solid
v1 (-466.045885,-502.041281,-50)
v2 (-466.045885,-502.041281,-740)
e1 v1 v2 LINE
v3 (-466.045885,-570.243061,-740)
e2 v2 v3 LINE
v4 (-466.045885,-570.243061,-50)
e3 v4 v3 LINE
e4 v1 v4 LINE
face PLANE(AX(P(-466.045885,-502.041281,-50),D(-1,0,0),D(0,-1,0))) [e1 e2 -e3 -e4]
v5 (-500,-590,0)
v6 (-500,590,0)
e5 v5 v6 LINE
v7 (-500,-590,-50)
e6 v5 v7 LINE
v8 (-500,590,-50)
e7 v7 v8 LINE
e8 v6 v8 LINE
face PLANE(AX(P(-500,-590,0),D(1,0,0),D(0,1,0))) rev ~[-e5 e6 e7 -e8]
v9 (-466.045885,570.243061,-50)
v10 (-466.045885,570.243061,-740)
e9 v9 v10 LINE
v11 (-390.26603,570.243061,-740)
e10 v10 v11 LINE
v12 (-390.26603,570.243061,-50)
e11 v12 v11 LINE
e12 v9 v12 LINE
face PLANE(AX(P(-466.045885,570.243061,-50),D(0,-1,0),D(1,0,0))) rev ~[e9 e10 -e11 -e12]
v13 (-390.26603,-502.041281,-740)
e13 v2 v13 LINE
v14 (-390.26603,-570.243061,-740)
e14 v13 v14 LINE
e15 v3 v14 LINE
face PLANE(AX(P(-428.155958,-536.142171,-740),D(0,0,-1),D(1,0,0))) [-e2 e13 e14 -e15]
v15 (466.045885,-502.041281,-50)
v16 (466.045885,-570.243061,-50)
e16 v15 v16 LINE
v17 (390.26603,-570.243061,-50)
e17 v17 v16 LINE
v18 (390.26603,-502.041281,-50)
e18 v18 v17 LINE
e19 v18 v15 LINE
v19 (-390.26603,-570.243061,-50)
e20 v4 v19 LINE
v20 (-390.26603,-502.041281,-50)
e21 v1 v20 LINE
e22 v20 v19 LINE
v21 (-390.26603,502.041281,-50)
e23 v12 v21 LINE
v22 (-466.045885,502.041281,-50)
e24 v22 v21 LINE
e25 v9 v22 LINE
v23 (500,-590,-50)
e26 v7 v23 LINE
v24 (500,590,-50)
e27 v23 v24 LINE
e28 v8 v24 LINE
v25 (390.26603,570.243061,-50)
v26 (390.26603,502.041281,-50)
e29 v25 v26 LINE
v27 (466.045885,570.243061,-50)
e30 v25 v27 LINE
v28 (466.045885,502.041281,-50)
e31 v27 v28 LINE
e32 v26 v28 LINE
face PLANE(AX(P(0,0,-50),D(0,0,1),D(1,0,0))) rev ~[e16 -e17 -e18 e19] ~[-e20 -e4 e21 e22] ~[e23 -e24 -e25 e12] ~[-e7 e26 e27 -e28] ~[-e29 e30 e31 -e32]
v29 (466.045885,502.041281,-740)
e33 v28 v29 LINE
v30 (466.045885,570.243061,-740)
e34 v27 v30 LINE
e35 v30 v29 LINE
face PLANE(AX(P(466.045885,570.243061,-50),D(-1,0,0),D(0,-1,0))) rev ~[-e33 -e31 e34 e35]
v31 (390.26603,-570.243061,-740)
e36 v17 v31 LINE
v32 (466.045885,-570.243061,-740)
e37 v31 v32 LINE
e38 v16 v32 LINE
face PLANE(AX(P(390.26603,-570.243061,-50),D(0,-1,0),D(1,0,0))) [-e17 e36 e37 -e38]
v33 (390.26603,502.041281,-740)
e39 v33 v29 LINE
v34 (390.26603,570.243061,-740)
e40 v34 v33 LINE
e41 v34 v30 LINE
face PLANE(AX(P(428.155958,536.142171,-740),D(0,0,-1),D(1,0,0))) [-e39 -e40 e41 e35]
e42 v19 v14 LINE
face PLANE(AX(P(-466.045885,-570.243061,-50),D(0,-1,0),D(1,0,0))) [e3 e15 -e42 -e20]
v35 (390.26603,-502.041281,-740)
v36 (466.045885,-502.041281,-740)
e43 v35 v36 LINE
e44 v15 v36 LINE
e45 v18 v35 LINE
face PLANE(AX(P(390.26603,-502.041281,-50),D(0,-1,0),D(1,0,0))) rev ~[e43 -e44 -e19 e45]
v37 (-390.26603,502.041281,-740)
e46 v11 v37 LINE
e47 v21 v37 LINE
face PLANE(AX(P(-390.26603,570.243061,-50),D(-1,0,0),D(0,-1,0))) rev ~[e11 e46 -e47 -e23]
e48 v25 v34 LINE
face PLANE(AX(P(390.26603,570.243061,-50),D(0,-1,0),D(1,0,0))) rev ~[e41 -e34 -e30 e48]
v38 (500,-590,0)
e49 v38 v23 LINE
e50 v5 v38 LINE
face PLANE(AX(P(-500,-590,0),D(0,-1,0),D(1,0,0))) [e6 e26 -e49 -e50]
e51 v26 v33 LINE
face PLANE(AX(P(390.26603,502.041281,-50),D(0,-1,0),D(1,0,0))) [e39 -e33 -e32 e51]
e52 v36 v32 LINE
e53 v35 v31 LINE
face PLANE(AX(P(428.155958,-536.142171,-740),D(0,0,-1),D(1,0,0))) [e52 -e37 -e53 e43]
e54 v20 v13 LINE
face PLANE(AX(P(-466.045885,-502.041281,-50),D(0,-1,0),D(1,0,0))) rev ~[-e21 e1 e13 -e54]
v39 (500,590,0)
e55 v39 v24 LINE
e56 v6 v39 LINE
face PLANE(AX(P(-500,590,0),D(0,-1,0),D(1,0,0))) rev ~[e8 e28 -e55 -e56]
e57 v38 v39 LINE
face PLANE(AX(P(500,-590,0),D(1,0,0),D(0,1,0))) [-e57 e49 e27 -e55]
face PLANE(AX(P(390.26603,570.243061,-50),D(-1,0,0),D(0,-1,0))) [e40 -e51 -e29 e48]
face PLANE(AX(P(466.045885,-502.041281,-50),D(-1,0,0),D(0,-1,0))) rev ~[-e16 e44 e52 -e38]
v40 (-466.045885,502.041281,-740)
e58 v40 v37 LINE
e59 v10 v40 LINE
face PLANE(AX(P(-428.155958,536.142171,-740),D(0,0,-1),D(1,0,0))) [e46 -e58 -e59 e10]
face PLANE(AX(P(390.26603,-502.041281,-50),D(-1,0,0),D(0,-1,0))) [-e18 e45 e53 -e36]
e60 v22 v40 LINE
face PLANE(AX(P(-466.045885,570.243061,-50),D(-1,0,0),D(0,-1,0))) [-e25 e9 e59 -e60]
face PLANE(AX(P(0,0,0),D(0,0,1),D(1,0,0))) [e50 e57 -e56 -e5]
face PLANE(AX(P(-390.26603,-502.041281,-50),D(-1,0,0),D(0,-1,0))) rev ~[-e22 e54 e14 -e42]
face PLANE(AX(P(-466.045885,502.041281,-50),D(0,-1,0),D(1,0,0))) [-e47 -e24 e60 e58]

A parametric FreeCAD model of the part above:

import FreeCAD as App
import Part
import Sketcher

V = App.Vector

doc = App.newDocument("Part")
body = doc.addObject("PartDesign::Body", "Body")

# Sketch on XY plane
sketch1 = body.newObject("Sketcher::SketchObject", "Sketch")
sketch1.AttachmentSupport = (doc.getObject("XY_Plane"), [""])
sketch1.MapMode = "FlatFace"
sketch1.addGeometry(Part.LineSegment(V(-500, 590, 0), V(-500, -590, 0)), False)
sketch1.addGeometry(Part.LineSegment(V(-500, -590, 0), V(500, -590, 0)), False)
sketch1.addGeometry(Part.LineSegment(V(500, -590, 0), V(500, 590, 0)), False)
sketch1.addGeometry(Part.LineSegment(V(500, 590, 0), V(-500, 590, 0)), False)
sketch1.addConstraint(Sketcher.Constraint("Coincident", 0, 2, 1, 1))
sketch1.addConstraint(Sketcher.Constraint("Coincident", 1, 2, 2, 1))
sketch1.addConstraint(Sketcher.Constraint("Coincident", 2, 2, 3, 1))
sketch1.addConstraint(Sketcher.Constraint("Coincident", 3, 2, 0, 1))
sketch1.addConstraint(Sketcher.Constraint("Vertical", 0))
sketch1.addConstraint(Sketcher.Constraint("Horizontal", 1))
sketch1.addConstraint(Sketcher.Constraint("Vertical", 2))
sketch1.addConstraint(Sketcher.Constraint("Horizontal", 3))
sketch1.addConstraint(Sketcher.Constraint("Symmetric", 0, 2, 2, 2, -1, 1))
sketch1.addConstraint(Sketcher.Constraint("DistanceX", 1, 1, 1, 2, 1000.0))
sketch1.addConstraint(Sketcher.Constraint("DistanceY", 0, 2, 0, 1, 1180.0))
pad1 = body.newObject("PartDesign::Pad", "Pad")
pad1.Profile = sketch1
pad1.Length = 50
pad1.Reversed = True

# Sketch on XY plane
sketch2 = body.newObject("Sketcher::SketchObject", "Sketch001")
sketch2.AttachmentSupport = (doc.getObject("XY_Plane"), [""])
sketch2.MapMode = "FlatFace"
sketch2.AttachmentOffset = App.Placement(V(0, 0, -50), App.Rotation())
sketch2.addGeometry(Part.LineSegment(V(-466, -570, 0), V(-466, -502, 0)), False)
sketch2.addGeometry(Part.LineSegment(V(-466, -502, 0), V(-390, -502, 0)), False)
sketch2.addGeometry(Part.LineSegment(V(-390, -502, 0), V(-390, -570, 0)), False)
sketch2.addGeometry(Part.LineSegment(V(-390, -570, 0), V(-466, -570, 0)), False)
sketch2.addGeometry(Part.LineSegment(V(390, -570, 0), V(390, -502, 0)), False)
sketch2.addGeometry(Part.LineSegment(V(390, -502, 0), V(466, -502, 0)), False)
sketch2.addGeometry(Part.LineSegment(V(466, -502, 0), V(466, -570, 0)), False)
sketch2.addGeometry(Part.LineSegment(V(466, -570, 0), V(390, -570, 0)), False)
sketch2.addGeometry(Part.LineSegment(V(390, 502, 0), V(390, 570, 0)), False)
sketch2.addGeometry(Part.LineSegment(V(390, 570, 0), V(466, 570, 0)), False)
sketch2.addGeometry(Part.LineSegment(V(466, 570, 0), V(466, 502, 0)), False)
sketch2.addGeometry(Part.LineSegment(V(466, 502, 0), V(390, 502, 0)), False)
sketch2.addGeometry(Part.LineSegment(V(-466, 502, 0), V(-466, 570, 0)), False)
sketch2.addGeometry(Part.LineSegment(V(-466, 570, 0), V(-390, 570, 0)), False)
sketch2.addGeometry(Part.LineSegment(V(-390, 570, 0), V(-390, 502, 0)), False)
sketch2.addGeometry(Part.LineSegment(V(-390, 502, 0), V(-466, 502, 0)), False)
sketch2.addConstraint(Sketcher.Constraint("Coincident", 0, 2, 1, 1))
sketch2.addConstraint(Sketcher.Constraint("Coincident", 1, 2, 2, 1))
sketch2.addConstraint(Sketcher.Constraint("Coincident", 2, 2, 3, 1))
sketch2.addConstraint(Sketcher.Constraint("Coincident", 3, 2, 0, 1))
sketch2.addConstraint(Sketcher.Constraint("Coincident", 4, 2, 5, 1))
sketch2.addConstraint(Sketcher.Constraint("Coincident", 5, 2, 6, 1))
sketch2.addConstraint(Sketcher.Constraint("Coincident", 6, 2, 7, 1))
sketch2.addConstraint(Sketcher.Constraint("Coincident", 7, 2, 4, 1))
sketch2.addConstraint(Sketcher.Constraint("Coincident", 8, 2, 9, 1))
sketch2.addConstraint(Sketcher.Constraint("Coincident", 9, 2, 10, 1))
sketch2.addConstraint(Sketcher.Constraint("Coincident", 10, 2, 11, 1))
sketch2.addConstraint(Sketcher.Constraint("Coincident", 11, 2, 8, 1))
sketch2.addConstraint(Sketcher.Constraint("Coincident", 12, 2, 13, 1))
sketch2.addConstraint(Sketcher.Constraint("Coincident", 13, 2, 14, 1))
sketch2.addConstraint(Sketcher.Constraint("Coincident", 14, 2, 15, 1))
sketch2.addConstraint(Sketcher.Constraint("Coincident", 15, 2, 12, 1))
sketch2.addConstraint(Sketcher.Constraint("Vertical", 0))
sketch2.addConstraint(Sketcher.Constraint("Horizontal", 1))
sketch2.addConstraint(Sketcher.Constraint("Vertical", 2))
sketch2.addConstraint(Sketcher.Constraint("Horizontal", 3))
sketch2.addConstraint(Sketcher.Constraint("Vertical", 4))
sketch2.addConstraint(Sketcher.Constraint("Horizontal", 5))
sketch2.addConstraint(Sketcher.Constraint("Vertical", 6))
sketch2.addConstraint(Sketcher.Constraint("Horizontal", 7))
sketch2.addConstraint(Sketcher.Constraint("Vertical", 8))
sketch2.addConstraint(Sketcher.Constraint("Horizontal", 9))
sketch2.addConstraint(Sketcher.Constraint("Vertical", 10))
sketch2.addConstraint(Sketcher.Constraint("Horizontal", 11))
sketch2.addConstraint(Sketcher.Constraint("Vertical", 12))
sketch2.addConstraint(Sketcher.Constraint("Horizontal", 13))
sketch2.addConstraint(Sketcher.Constraint("Vertical", 14))
sketch2.addConstraint(Sketcher.Constraint("Horizontal", 15))
sketch2.addConstraint(Sketcher.Constraint("Symmetric", 2, 2, 8, 2, -1, 1))
sketch2.addConstraint(Sketcher.Constraint("Symmetric", 0, 2, 10, 2, -1, 1))
sketch2.addConstraint(Sketcher.Constraint("Symmetric", 6, 2, 12, 2, -1, 1))
sketch2.addConstraint(Sketcher.Constraint("Symmetric", 4, 2, 14, 2, -1, 1))
sketch2.addConstraint(Sketcher.Constraint("Symmetric", 1, 2, 4, 2, -2))
sketch2.addConstraint(Sketcher.Constraint("Symmetric", 3, 2, 6, 2, -2))
sketch2.addConstraint(Sketcher.Constraint("DistanceY", 0, 1, 0, 2, 68.201781))
sketch2.addConstraint(Sketcher.Constraint("DistanceX", 1, 1, 1, 2, 75.779855))
sketch2.addConstraint(Sketcher.Constraint("DistanceY", 0, 2, -1, 1, 502.041281))
sketch2.addConstraint(Sketcher.Constraint("DistanceX", 1, 2, -1, 1, 390.26603))
pad2 = body.newObject("PartDesign::Pad", "Pad001")
pad2.Profile = sketch2
pad2.Length = 690
pad2.Reversed = True

doc.recompute()
